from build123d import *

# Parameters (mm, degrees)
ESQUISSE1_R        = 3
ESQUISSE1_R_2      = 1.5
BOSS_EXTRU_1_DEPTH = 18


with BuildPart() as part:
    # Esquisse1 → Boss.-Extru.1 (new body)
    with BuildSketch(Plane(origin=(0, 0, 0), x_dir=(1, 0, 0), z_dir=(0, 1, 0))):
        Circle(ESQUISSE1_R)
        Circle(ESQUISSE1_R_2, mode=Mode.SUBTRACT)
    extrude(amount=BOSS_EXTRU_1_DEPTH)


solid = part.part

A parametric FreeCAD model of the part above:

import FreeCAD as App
import Part
import Sketcher
from FreeCAD import Vector

doc = App.newDocument("Part")
params = doc.addObject("Spreadsheet::Sheet", "Params")
for row, (alias, value) in enumerate([
    ("sketch1_diameter", "6 mm"),
    ("sketch1_diameter2", "3 mm"),
    ("pad1_length", "18 mm"),
], start=1):
    params.set(f"A{row}", alias)
    params.set(f"B{row}", "=" + value)
    params.setAlias(f"B{row}", alias)

body = doc.addObject("PartDesign::Body", "Body")

sketch1 = body.newObject("Sketcher::SketchObject", "Sketch")
sketch1.AttachmentSupport = (doc.getObject("XZ_Plane"), [""])
sketch1.MapMode = "FlatFace"
sketch1.addGeometry([
    Part.Circle(Vector(0, 0, 0), Vector(0, 0, 1), 3),
    Part.Circle(Vector(0, 0, 0), Vector(0, 0, 1), 1.5),
], False)
sketch1.addConstraint([
    Sketcher.Constraint("Coincident", 0, 3, -1, 1),
    Sketcher.Constraint("Coincident", 1, 3, -1, 1),
    Sketcher.Constraint("Diameter", 0, 6.0),
    Sketcher.Constraint("Diameter", 1, 3.0),
])
sketch1.setExpression("Constraints[2]", "Params.sketch1_diameter")
sketch1.setExpression("Constraints[3]", "Params.sketch1_diameter2")
pad1 = body.newObject("PartDesign::Pad", "Pad")
pad1.Profile = sketch1
pad1.setExpression("Length", "Params.pad1_length")
pad1.Reversed = True

doc.recompute()
